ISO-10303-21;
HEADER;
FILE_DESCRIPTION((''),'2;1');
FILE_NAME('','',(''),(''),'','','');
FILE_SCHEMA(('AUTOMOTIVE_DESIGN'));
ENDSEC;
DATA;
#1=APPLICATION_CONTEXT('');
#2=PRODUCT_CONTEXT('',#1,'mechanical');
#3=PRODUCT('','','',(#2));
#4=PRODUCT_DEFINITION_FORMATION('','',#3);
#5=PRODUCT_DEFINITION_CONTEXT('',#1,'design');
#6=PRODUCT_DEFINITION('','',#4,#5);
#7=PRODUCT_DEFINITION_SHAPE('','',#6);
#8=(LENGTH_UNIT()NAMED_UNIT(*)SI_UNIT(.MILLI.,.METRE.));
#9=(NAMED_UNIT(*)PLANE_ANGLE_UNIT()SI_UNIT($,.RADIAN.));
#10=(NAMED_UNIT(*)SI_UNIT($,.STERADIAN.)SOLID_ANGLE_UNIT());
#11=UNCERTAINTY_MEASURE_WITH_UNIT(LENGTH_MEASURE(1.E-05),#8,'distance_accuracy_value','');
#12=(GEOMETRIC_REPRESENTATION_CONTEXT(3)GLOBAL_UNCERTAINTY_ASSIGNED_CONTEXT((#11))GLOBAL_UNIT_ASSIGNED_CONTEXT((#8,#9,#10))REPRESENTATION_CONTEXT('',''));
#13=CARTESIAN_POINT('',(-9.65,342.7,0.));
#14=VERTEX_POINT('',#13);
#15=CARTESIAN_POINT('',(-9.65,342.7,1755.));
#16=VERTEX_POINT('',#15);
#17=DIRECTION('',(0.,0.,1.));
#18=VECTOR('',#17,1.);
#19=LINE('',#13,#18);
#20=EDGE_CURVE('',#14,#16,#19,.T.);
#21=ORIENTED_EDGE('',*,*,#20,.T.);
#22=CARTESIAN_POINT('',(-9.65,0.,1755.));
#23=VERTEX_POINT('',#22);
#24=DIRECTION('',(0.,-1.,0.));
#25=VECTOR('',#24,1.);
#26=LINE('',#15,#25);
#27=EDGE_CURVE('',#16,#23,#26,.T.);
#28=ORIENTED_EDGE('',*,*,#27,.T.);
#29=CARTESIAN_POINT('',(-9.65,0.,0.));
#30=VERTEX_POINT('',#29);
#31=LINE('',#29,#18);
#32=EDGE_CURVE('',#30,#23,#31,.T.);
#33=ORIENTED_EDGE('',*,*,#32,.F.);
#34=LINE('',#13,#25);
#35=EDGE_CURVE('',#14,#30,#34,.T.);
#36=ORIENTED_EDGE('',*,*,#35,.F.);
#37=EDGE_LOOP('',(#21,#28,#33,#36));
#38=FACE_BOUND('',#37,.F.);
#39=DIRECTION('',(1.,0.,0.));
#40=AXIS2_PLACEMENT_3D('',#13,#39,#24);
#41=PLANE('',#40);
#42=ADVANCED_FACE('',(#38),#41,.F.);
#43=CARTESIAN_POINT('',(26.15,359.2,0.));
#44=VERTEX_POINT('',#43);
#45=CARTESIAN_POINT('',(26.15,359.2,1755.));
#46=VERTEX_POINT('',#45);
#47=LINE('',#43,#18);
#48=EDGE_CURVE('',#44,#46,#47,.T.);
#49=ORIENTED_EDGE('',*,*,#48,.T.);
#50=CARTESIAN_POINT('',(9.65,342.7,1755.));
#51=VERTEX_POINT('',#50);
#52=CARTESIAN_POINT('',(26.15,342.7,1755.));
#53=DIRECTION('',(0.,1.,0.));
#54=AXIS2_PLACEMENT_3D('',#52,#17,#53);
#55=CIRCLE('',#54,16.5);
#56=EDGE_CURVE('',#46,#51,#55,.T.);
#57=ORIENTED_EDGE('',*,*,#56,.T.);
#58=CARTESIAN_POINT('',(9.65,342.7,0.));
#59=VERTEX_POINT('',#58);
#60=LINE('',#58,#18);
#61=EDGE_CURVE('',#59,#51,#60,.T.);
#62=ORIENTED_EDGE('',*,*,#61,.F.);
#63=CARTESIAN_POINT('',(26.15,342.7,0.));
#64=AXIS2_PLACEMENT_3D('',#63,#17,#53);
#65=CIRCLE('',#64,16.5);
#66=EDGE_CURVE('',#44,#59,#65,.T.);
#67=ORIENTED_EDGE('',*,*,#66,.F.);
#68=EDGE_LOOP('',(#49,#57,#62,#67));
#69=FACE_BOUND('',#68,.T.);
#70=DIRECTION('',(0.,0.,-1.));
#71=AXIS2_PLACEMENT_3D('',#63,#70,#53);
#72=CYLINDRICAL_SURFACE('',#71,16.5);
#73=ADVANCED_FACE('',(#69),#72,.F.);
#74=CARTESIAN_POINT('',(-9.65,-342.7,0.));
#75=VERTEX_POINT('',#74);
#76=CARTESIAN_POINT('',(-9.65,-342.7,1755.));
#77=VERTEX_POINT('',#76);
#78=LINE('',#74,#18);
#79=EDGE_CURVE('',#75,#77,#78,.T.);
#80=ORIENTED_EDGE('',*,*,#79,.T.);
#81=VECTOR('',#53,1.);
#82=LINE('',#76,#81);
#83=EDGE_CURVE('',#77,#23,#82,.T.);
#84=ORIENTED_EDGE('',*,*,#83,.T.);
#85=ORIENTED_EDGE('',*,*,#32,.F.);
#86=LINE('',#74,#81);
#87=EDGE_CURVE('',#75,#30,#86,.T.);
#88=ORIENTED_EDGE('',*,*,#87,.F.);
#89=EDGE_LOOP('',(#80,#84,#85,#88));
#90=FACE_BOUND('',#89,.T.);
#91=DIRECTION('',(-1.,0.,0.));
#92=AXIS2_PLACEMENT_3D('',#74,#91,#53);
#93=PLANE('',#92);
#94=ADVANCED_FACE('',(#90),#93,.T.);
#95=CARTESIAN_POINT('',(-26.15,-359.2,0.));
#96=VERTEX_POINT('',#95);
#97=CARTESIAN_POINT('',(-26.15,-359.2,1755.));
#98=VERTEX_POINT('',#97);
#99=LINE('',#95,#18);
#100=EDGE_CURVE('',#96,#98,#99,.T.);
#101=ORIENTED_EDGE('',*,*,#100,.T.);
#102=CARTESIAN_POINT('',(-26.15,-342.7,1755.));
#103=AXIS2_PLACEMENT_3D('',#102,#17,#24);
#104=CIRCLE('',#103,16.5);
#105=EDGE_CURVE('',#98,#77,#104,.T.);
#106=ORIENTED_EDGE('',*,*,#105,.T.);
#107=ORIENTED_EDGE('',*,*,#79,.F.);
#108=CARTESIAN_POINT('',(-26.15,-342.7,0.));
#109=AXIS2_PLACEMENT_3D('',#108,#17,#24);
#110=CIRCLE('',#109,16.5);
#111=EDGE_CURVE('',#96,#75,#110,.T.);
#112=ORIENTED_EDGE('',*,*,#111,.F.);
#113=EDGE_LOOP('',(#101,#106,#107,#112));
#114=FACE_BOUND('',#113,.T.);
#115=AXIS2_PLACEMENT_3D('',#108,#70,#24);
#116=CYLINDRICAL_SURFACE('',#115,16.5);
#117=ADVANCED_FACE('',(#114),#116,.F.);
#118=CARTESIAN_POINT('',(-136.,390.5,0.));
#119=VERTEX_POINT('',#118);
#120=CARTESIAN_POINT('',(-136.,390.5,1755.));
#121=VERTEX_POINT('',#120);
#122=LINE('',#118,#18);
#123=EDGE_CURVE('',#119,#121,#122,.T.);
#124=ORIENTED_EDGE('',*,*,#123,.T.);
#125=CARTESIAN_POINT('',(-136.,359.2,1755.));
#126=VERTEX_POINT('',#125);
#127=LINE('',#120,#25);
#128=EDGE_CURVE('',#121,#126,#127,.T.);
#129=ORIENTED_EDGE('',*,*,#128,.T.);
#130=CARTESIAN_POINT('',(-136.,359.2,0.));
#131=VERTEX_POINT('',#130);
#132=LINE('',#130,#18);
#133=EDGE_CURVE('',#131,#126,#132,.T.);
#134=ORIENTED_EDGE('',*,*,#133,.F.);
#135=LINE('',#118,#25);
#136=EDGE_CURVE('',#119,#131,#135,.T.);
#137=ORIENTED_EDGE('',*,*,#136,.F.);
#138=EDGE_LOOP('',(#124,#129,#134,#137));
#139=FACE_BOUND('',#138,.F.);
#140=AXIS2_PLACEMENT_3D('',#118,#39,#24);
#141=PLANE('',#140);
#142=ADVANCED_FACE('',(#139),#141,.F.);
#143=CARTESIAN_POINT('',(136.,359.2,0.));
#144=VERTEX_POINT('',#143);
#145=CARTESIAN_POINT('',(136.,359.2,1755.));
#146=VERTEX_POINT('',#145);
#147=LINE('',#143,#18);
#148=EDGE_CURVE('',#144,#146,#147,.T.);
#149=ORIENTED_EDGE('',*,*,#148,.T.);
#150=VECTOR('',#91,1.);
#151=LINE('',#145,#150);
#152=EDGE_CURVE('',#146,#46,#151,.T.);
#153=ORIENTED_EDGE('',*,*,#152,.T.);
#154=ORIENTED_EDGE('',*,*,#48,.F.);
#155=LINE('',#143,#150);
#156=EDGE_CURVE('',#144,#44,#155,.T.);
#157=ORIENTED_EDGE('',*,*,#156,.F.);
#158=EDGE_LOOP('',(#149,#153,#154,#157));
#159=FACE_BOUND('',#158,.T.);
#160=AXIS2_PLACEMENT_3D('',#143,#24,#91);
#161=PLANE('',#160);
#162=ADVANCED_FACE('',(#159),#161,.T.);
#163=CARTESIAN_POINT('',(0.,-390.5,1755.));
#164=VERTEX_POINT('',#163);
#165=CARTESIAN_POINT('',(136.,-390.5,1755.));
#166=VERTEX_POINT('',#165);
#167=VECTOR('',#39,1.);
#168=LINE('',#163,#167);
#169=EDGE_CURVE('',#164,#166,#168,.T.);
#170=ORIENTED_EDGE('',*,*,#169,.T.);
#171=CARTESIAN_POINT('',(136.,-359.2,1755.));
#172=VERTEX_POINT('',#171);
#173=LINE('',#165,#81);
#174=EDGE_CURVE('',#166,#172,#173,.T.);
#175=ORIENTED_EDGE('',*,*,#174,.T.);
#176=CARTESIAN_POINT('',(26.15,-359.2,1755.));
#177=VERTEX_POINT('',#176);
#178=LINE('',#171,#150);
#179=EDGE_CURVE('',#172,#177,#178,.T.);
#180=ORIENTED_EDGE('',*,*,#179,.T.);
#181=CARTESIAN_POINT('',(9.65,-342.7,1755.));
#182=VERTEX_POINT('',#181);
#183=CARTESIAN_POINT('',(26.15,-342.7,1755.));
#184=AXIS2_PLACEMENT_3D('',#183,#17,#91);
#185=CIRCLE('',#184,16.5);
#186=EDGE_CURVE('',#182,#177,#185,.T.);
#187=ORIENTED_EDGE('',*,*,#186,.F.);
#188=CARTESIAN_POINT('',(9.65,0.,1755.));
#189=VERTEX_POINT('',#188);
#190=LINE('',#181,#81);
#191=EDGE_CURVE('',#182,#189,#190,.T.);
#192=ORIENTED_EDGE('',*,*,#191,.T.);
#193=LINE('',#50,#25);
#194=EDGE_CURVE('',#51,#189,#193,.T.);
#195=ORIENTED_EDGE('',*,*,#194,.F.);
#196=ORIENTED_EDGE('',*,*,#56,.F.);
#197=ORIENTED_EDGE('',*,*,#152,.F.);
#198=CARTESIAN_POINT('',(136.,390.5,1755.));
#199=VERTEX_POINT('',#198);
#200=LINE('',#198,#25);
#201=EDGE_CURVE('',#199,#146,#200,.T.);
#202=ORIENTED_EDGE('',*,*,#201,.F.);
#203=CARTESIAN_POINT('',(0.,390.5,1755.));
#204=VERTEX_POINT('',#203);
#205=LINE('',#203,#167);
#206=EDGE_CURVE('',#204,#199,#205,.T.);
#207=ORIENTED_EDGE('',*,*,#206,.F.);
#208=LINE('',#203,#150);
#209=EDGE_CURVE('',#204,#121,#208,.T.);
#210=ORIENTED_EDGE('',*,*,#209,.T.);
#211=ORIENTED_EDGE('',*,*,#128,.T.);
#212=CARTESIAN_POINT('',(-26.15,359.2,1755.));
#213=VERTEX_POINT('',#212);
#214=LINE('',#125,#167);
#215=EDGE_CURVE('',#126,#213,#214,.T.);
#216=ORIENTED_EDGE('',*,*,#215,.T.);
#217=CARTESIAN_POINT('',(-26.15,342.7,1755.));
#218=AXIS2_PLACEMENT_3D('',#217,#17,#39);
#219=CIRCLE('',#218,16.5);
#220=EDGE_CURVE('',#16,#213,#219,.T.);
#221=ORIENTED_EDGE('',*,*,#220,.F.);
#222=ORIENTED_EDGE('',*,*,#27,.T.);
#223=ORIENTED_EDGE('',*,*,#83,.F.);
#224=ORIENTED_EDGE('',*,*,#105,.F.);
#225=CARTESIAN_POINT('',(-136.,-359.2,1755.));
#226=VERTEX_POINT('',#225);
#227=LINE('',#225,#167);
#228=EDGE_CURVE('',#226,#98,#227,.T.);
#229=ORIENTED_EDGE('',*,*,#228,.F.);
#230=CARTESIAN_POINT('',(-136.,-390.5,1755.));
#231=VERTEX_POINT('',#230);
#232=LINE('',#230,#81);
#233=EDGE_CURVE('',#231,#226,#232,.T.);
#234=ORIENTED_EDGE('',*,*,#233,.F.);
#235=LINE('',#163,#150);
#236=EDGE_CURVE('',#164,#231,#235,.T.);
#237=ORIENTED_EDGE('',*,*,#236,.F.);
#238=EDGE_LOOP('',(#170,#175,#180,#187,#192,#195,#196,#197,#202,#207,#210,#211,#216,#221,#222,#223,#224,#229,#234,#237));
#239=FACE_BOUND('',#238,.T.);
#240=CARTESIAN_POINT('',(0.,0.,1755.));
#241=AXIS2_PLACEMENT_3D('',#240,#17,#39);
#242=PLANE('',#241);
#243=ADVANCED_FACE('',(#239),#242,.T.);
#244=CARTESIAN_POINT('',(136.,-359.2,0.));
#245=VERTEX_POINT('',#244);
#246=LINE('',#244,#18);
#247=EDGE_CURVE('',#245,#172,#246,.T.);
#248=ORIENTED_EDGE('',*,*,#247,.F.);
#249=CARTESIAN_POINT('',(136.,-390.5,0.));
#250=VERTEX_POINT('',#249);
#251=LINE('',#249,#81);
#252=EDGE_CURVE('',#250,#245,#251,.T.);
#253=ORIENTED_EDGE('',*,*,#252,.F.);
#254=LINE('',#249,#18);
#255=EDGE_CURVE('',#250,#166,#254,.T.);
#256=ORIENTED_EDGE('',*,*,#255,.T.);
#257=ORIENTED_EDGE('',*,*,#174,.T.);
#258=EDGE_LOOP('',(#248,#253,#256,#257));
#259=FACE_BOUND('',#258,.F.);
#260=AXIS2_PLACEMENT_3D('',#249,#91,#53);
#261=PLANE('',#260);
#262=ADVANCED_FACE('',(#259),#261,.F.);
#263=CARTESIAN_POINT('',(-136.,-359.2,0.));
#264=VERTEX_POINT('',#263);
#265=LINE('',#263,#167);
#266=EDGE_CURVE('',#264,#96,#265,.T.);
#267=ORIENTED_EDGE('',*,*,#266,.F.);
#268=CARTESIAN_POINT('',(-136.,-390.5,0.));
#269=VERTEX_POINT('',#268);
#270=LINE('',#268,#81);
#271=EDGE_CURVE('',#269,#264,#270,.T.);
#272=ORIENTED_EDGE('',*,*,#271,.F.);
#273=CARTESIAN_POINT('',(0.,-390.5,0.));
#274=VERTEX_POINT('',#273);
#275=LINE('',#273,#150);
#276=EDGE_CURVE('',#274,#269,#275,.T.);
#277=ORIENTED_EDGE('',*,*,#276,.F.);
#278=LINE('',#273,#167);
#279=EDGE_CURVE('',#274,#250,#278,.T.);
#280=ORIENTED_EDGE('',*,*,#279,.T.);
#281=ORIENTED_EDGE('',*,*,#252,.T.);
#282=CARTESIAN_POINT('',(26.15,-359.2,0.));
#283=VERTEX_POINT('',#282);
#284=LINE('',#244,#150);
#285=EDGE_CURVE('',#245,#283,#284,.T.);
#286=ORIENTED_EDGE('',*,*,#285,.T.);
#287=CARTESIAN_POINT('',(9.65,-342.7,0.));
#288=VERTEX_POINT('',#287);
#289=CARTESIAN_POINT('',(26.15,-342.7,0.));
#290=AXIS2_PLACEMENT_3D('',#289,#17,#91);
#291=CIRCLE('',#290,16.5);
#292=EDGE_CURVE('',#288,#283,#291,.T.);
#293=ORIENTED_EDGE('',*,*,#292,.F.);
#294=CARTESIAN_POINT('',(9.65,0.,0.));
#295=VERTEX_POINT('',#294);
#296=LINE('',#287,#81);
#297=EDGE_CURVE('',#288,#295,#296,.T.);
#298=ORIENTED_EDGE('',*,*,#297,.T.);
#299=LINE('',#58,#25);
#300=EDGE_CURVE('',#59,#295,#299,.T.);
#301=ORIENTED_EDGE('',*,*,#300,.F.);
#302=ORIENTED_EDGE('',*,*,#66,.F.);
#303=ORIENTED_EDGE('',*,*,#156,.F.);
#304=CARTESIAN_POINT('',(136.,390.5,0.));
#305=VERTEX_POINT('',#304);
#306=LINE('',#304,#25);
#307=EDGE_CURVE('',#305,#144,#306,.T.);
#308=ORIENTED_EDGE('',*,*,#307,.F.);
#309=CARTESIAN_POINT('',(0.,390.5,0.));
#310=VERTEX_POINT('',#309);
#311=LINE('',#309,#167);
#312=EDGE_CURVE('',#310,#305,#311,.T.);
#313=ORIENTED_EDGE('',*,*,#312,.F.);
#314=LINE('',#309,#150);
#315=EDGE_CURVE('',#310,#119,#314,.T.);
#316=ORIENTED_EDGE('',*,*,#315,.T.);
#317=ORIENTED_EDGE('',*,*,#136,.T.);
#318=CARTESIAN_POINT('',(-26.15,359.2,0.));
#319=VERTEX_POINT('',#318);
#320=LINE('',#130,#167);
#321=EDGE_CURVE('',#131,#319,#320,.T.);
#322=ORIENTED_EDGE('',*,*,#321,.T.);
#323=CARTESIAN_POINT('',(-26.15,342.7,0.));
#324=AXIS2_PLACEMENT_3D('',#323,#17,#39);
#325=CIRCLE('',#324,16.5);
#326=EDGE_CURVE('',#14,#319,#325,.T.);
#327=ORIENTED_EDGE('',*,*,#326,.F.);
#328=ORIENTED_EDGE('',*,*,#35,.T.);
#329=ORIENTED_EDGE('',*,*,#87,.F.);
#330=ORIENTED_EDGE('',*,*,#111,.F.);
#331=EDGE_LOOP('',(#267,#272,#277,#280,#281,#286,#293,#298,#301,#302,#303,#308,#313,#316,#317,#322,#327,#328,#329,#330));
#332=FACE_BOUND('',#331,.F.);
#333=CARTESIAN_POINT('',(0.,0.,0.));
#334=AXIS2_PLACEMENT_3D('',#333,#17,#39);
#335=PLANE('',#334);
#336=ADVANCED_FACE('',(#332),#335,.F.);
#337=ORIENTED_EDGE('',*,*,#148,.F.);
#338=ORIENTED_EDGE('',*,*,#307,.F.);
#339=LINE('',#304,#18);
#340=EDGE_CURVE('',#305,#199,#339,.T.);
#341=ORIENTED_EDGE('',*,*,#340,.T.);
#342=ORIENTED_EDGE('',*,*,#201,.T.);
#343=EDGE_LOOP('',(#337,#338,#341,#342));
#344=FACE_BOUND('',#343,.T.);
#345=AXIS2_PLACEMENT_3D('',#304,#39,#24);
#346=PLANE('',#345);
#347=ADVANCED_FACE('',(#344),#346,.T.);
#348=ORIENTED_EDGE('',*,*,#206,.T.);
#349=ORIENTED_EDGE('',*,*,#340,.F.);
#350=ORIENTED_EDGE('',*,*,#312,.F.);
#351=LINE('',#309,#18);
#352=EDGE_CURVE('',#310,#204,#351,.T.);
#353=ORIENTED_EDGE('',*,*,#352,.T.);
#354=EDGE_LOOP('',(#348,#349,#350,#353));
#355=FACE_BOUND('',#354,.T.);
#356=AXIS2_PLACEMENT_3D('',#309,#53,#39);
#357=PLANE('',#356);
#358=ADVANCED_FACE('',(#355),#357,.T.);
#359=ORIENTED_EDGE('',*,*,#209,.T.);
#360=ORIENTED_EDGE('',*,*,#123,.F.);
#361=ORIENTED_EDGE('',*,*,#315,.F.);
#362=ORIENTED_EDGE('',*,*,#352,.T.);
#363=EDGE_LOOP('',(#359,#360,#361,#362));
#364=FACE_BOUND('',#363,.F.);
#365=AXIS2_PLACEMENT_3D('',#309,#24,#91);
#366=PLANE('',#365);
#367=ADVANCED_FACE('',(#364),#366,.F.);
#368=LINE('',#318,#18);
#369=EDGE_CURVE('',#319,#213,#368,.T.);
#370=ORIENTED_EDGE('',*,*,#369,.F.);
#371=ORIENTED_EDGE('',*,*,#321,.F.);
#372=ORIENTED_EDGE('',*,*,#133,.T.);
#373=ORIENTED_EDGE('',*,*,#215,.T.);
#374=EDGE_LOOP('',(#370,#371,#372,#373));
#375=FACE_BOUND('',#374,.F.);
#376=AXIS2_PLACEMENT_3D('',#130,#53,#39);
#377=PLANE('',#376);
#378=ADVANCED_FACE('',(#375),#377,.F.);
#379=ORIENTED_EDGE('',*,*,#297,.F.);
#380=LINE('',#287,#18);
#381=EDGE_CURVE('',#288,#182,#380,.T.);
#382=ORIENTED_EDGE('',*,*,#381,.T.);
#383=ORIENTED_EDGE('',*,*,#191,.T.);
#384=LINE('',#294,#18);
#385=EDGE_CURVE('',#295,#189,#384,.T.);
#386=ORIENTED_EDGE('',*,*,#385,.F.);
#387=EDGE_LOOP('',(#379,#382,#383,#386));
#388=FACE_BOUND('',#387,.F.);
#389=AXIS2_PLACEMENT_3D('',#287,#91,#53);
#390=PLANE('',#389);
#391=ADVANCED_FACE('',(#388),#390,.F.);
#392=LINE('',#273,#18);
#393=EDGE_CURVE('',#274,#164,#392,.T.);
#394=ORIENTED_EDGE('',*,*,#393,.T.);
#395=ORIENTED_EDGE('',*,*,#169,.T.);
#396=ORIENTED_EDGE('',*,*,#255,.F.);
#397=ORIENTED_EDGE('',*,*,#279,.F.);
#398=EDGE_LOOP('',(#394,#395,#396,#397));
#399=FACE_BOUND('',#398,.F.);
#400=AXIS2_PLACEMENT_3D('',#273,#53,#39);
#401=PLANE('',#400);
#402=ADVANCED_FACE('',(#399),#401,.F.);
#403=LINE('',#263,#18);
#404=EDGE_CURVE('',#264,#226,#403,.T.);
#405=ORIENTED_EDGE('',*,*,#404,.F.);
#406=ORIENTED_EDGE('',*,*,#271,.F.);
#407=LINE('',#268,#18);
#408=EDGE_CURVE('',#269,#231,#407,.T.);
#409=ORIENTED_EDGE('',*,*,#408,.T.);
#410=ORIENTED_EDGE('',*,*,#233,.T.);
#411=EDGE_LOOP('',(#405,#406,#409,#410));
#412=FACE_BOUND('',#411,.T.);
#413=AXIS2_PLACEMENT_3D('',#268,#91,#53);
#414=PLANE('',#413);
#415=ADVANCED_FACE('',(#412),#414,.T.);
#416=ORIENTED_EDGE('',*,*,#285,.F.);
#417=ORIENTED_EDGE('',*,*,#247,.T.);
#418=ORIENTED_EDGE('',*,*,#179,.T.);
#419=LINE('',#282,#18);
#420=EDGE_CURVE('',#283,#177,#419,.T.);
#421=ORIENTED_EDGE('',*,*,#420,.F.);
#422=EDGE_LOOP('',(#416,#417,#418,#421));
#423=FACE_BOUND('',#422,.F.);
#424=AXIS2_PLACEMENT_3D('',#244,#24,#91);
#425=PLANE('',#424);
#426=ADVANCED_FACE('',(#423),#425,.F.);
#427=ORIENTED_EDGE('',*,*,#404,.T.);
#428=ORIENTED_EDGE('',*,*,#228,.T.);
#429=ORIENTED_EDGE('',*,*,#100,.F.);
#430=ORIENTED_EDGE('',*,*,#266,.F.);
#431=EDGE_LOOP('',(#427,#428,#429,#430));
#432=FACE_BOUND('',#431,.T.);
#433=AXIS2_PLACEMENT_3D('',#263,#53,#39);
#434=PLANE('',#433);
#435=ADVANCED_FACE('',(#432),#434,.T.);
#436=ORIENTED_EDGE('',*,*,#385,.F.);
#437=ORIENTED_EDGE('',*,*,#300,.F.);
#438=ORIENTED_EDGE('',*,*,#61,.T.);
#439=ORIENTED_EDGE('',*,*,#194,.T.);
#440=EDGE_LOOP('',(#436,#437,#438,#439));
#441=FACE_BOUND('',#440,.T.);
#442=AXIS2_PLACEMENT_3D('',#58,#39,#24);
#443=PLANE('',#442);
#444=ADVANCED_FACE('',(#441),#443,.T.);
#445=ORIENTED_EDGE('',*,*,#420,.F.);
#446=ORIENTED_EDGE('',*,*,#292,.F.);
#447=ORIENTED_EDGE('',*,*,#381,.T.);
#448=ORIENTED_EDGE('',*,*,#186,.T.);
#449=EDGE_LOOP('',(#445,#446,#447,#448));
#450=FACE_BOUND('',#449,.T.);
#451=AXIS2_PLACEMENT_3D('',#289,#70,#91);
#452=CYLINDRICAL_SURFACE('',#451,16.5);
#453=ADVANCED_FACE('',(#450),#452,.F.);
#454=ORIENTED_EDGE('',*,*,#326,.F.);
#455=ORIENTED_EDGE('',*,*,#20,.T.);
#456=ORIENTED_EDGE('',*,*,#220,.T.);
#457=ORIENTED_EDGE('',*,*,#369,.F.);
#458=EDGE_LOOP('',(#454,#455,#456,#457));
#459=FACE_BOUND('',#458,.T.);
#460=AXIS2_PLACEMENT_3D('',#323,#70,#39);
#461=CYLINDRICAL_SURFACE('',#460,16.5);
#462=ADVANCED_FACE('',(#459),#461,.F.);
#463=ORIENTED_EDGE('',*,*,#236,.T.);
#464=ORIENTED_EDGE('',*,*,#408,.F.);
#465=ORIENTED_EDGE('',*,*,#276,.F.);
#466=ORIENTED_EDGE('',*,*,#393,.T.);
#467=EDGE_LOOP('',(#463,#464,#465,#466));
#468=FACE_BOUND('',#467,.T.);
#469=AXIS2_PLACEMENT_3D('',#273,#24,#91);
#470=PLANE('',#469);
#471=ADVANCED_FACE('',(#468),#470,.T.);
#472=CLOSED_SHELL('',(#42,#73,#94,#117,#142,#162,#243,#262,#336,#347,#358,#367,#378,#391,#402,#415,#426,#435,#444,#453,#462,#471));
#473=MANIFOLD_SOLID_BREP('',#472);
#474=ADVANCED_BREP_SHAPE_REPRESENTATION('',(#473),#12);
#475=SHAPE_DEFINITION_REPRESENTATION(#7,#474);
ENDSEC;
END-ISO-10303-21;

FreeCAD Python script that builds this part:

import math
import FreeCAD as App
import Part
import Sketcher
from FreeCAD import Vector

doc = App.newDocument("Part")
params = doc.addObject("Spreadsheet::Sheet", "Params")
for row, (alias, value) in enumerate([
    ("sketch1_radius", "16.5 mm"),
    ("sketch1_height", "31.3 mm"),
    ("pad1_length", "1755 mm"),
], start=1):
    params.set(f"A{row}", alias)
    params.set(f"B{row}", "=" + value)
    params.setAlias(f"B{row}", alias)

body = doc.addObject("PartDesign::Body", "Body")

sketch1 = body.newObject("Sketcher::SketchObject", "Sketch")
sketch1.AttachmentSupport = (doc.getObject("XY_Plane"), [""])
sketch1.MapMode = "FlatFace"
sketch1.addGeometry([
    Part.LineSegment(Vector(-136, -359, 0), Vector(-136, -390, 0)),
    Part.LineSegment(Vector(-136, -390, 0), Vector(136, -390, 0)),
    Part.LineSegment(Vector(136, -390, 0), Vector(136, -359, 0)),
    Part.LineSegment(Vector(136, -359, 0), Vector(26, -359, 0)),
    Part.ArcOfCircle(Part.Circle(Vector(26, -343, 0), Vector(0, 0, 1), 16), math.radians(180), math.radians(270)),
    Part.LineSegment(Vector(10, -343, 0), Vector(10, 343, 0)),
    Part.ArcOfCircle(Part.Circle(Vector(26, 343, 0), Vector(0, 0, 1), 16), math.radians(90), math.radians(180)),
    Part.LineSegment(Vector(26, 359, 0), Vector(136, 359, 0)),
    Part.LineSegment(Vector(136, 359, 0), Vector(136, 390, 0)),
    Part.LineSegment(Vector(136, 390, 0), Vector(-136, 390, 0)),
    Part.LineSegment(Vector(-136, 390, 0), Vector(-136, 359, 0)),
    Part.LineSegment(Vector(-136, 359, 0), Vector(-26, 359, 0)),
    Part.ArcOfCircle(Part.Circle(Vector(-26, 343, 0), Vector(0, 0, 1), 16), math.radians(0), math.radians(90)),
    Part.LineSegment(Vector(-10, 343, 0), Vector(-10, -343, 0)),
    Part.ArcOfCircle(Part.Circle(Vector(-26, -343, 0), Vector(0, 0, 1), 16), math.radians(-90), math.radians(0)),
    Part.LineSegment(Vector(-26, -359, 0), Vector(-136, -359, 0)),
], False)
sketch1.addConstraint([
    Sketcher.Constraint("Coincident", 0, 2, 1, 1),
    Sketcher.Constraint("Coincident", 1, 2, 2, 1),
    Sketcher.Constraint("Coincident", 2, 2, 3, 1),
    Sketcher.Constraint("Tangent", 3, 2, 4, 2),
    Sketcher.Constraint("Tangent", 4, 1, 5, 1),
    Sketcher.Constraint("Tangent", 5, 2, 6, 2),
    Sketcher.Constraint("Tangent", 6, 1, 7, 1),
    Sketcher.Constraint("Coincident", 7, 2, 8, 1),
    Sketcher.Constraint("Coincident", 8, 2, 9, 1),
    Sketcher.Constraint("Coincident", 9, 2, 10, 1),
    Sketcher.Constraint("Coincident", 10, 2, 11, 1),
    Sketcher.Constraint("Tangent", 11, 2, 12, 2),
    Sketcher.Constraint("Tangent", 12, 1, 13, 1),
    Sketcher.Constraint("Tangent", 13, 2, 14, 2),
    Sketcher.Constraint("Tangent", 14, 1, 15, 1),
    Sketcher.Constraint("Coincident", 15, 2, 0, 1),
    Sketcher.Constraint("Vertical", 0),
    Sketcher.Constraint("Horizontal", 1),
    Sketcher.Constraint("Vertical", 2),
    Sketcher.Constraint("Horizontal", 3),
    Sketcher.Constraint("Vertical", 5),
    Sketcher.Constraint("Horizontal", 7),
    Sketcher.Constraint("Vertical", 8),
    Sketcher.Constraint("Horizontal", 9),
    Sketcher.Constraint("Vertical", 10),
    Sketcher.Constraint("Horizontal", 11),
    Sketcher.Constraint("Vertical", 13),
    Sketcher.Constraint("Horizontal", 15),
    Sketcher.Constraint("Equal", 4, 6),
    Sketcher.Constraint("Equal", 6, 12),
    Sketcher.Constraint("Equal", 12, 14),
    Sketcher.Constraint("Symmetric", 4, 3, 12, 3, -1, 1),
    Sketcher.Constraint("Symmetric", 0, 2, 8, 2, -1, 1),
    Sketcher.Constraint("Symmetric", 7, 2, 10, 2, -2),
    Sketcher.Constraint("Symmetric", 2, 2, 15, 2, -2),
    Sketcher.Constraint("Radius", 4, 16.5),
    Sketcher.Constraint("DistanceY", 0, 2, 0, 1, 31.3),
    Sketcher.Constraint("DistanceX", 0, 2, -1, 1, 136.0),
    Sketcher.Constraint("DistanceY", 0, 2, -1, 1, 390.5),
    Sketcher.Constraint("DistanceX", -1, 1, 4, 1, 9.65),
])
sketch1.setExpression("Constraints[35]", "Params.sketch1_radius")
sketch1.setExpression("Constraints[36]", "Params.sketch1_height")
pad1 = body.newObject("PartDesign::Pad", "Pad")
pad1.Profile = sketch1
pad1.setExpression("Length", "Params.pad1_length")

doc.recompute()
